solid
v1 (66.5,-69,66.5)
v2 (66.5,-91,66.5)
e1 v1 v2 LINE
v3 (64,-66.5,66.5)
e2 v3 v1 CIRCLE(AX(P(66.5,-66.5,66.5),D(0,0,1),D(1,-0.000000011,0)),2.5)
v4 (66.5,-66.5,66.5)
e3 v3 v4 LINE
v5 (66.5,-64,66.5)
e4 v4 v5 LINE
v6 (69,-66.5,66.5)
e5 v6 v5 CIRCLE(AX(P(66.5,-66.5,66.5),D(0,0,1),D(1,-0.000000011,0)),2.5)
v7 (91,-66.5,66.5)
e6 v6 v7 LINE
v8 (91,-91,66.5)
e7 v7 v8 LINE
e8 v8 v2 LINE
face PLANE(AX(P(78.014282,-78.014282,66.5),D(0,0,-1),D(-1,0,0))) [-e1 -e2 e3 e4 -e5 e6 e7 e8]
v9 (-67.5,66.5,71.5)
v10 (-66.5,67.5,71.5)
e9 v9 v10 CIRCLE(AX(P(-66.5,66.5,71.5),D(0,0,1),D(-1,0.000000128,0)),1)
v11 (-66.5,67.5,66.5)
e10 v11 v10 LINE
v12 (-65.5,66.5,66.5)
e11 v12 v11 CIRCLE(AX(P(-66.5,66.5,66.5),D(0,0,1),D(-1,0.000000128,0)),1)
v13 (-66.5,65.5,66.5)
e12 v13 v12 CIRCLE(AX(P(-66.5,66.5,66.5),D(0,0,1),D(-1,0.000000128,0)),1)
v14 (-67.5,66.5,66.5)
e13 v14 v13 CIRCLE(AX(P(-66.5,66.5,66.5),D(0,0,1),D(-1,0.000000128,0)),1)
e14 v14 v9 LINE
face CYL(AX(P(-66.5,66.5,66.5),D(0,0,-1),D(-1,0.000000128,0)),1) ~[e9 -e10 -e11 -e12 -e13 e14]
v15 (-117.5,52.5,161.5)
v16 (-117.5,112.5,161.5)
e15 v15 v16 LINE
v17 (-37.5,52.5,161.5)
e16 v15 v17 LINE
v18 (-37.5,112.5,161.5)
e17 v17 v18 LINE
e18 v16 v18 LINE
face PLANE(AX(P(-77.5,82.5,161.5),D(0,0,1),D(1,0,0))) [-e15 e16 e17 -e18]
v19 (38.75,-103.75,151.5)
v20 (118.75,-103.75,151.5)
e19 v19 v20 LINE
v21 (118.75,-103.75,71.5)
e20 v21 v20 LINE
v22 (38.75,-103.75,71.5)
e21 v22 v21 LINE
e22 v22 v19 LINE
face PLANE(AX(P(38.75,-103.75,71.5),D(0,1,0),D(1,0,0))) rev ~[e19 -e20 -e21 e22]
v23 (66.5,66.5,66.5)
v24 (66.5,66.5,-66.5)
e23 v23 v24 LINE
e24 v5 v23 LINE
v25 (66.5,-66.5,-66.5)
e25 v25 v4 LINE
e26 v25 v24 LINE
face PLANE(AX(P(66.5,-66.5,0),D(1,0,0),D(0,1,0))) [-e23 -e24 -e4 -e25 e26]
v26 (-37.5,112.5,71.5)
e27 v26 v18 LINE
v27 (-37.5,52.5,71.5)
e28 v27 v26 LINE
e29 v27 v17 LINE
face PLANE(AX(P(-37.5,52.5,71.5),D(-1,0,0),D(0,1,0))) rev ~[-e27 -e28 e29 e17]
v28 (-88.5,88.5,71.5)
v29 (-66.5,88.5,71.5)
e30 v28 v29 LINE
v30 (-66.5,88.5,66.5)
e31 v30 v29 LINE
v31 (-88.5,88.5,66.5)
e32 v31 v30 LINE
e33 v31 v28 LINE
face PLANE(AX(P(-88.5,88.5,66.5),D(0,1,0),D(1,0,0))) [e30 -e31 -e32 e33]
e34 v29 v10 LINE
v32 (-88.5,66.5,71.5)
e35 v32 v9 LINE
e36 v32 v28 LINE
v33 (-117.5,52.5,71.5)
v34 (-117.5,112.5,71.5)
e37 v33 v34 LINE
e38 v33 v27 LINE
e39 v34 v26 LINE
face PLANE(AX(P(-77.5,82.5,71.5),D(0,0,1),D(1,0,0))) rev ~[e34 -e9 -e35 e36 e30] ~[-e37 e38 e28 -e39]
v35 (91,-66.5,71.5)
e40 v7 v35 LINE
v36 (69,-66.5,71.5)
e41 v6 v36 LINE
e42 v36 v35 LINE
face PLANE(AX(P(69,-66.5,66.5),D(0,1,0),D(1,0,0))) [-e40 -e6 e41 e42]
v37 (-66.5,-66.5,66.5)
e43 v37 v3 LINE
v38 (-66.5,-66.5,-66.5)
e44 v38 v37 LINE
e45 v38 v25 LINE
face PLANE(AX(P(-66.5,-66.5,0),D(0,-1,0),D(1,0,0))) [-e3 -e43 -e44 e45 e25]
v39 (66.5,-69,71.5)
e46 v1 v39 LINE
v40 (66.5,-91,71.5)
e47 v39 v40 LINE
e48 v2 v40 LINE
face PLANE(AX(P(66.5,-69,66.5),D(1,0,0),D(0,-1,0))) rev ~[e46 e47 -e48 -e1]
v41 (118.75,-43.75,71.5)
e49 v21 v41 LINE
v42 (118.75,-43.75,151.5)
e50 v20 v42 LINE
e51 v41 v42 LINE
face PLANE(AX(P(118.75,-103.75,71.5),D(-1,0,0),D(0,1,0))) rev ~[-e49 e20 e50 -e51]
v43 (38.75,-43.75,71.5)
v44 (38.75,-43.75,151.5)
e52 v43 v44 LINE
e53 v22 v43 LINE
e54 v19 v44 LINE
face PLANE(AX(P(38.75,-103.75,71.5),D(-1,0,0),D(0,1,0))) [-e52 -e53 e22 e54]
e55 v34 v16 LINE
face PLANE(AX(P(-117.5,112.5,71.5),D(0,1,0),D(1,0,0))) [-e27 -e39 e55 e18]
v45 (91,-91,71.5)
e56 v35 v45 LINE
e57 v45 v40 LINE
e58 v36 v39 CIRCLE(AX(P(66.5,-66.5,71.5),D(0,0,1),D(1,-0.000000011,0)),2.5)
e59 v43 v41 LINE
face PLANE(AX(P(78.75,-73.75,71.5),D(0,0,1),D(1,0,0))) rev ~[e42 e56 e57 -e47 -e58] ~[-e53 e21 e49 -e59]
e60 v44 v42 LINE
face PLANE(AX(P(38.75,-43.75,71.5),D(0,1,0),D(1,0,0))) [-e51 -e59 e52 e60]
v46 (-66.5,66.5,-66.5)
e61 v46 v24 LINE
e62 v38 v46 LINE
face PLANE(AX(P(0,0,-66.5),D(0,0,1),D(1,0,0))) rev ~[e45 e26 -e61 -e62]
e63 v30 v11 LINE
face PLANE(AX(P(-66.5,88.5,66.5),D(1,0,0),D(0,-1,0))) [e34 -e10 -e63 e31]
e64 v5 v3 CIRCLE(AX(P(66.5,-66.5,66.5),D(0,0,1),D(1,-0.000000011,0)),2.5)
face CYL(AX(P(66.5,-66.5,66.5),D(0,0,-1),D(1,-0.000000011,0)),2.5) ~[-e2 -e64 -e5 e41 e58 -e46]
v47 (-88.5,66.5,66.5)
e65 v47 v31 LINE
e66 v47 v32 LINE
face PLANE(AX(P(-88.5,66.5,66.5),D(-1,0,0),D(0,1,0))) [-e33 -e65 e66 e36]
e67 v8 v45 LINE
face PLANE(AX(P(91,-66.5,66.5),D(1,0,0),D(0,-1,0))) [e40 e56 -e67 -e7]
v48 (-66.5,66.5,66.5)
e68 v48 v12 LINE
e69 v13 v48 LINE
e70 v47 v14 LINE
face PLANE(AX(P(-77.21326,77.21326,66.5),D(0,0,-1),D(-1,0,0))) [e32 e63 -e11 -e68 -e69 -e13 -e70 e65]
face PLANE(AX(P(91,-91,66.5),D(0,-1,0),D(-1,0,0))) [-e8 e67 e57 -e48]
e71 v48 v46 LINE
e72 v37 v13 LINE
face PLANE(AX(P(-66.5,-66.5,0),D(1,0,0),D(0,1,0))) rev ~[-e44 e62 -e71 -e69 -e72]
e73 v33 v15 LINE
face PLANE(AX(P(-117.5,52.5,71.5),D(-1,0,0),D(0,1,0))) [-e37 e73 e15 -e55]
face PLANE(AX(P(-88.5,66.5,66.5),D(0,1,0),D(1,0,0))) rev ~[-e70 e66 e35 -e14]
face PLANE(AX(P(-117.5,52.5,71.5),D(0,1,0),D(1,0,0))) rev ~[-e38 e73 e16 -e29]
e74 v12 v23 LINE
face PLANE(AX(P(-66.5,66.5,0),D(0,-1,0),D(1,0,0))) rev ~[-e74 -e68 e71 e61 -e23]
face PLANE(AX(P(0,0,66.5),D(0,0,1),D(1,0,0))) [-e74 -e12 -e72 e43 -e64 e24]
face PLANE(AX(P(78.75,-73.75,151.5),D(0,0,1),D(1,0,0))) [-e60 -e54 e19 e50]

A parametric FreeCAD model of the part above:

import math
import FreeCAD as App
import Part
import Sketcher

V = App.Vector
Q = App.Units.Quantity

doc = App.newDocument("Part")
body = doc.addObject("PartDesign::Body", "Body")

sketch1 = doc.addObject("Sketcher::SketchObject", "Sketch")
body.addObject(sketch1)
sketch1.AttachmentSupport = (doc.XY_Plane, [""])
sketch1.MapMode = "FlatFace"
sketch1.addGeometry(Part.LineSegment(V(-66.5, 66.5, 0), V(-66.5, -66.5, 0)), False)
sketch1.addGeometry(Part.LineSegment(V(-66.5, -66.5, 0), V(66.5, -66.5, 0)), False)
sketch1.addGeometry(Part.LineSegment(V(66.5, -66.5, 0), V(66.5, 66.5, 0)), False)
sketch1.addGeometry(Part.LineSegment(V(66.5, 66.5, 0), V(-66.5, 66.5, 0)), False)
sketch1.addConstraint(Sketcher.Constraint("Coincident", 0, 2, 1, 1))
sketch1.addConstraint(Sketcher.Constraint("Coincident", 1, 2, 2, 1))
sketch1.addConstraint(Sketcher.Constraint("Coincident", 2, 2, 3, 1))
sketch1.addConstraint(Sketcher.Constraint("Coincident", 3, 2, 0, 1))
sketch1.addConstraint(Sketcher.Constraint("Vertical", 0))
sketch1.addConstraint(Sketcher.Constraint("Horizontal", 1))
sketch1.addConstraint(Sketcher.Constraint("Vertical", 2))
sketch1.addConstraint(Sketcher.Constraint("Horizontal", 3))
sketch1.addConstraint(Sketcher.Constraint("Symmetric", 0, 2, 2, 2, -1, 1))
sketch1.addConstraint(Sketcher.Constraint("Equal", 3, 0))
sketch1.addConstraint(Sketcher.Constraint("DistanceX", 1, 1, 1, 2, Q("133 mm")))
pad1 = doc.addObject("PartDesign::Pad", "Pad")
body.addObject(pad1)
pad1.Profile = sketch1
pad1.Length = 133
pad1.Midplane = True

sketch2 = doc.addObject("Sketcher::SketchObject", "Sketch001")
body.addObject(sketch2)
sketch2.AttachmentSupport = (doc.XY_Plane, [""])
sketch2.MapMode = "FlatFace"
sketch2.AttachmentOffset = App.Placement(V(0, 0, 66.5), App.Rotation())
sketch2.addGeometry(Part.LineSegment(V(-66.5, 88.5, 0), V(-88.5, 88.5, 0)), False)
sketch2.addGeometry(Part.LineSegment(V(-88.5, 88.5, 0), V(-88.5, 66.5, 0)), False)
sketch2.addGeometry(Part.LineSegment(V(-88.5, 66.5, 0), V(-67.5, 66.5, 0)), False)
sketch2.addGeometry(Part.ArcOfCircle(Part.Circle(V(-66.5, 66.5, 0), V(0, 0, 1), 1), math.radians(179.999993), math.radians(450.000007)), False)
sketch2.addGeometry(Part.LineSegment(V(-66.5, 67.5, 0), V(-66.5, 88.5, 0)), False)
sketch2.addConstraint(Sketcher.Constraint("Coincident", 0, 2, 1, 1))
sketch2.addConstraint(Sketcher.Constraint("Coincident", 1, 2, 2, 1))
sketch2.addConstraint(Sketcher.Constraint("Coincident", 2, 2, 3, 1))
sketch2.addConstraint(Sketcher.Constraint("Coincident", 3, 2, 4, 1))
sketch2.addConstraint(Sketcher.Constraint("Coincident", 4, 2, 0, 1))
sketch2.addConstraint(Sketcher.Constraint("Horizontal", 0))
sketch2.addConstraint(Sketcher.Constraint("Vertical", 1))
sketch2.addConstraint(Sketcher.Constraint("Horizontal", 2))
sketch2.addConstraint(Sketcher.Constraint("Vertical", 4))
sketch2.addConstraint(Sketcher.Constraint("Horizontal", 3, 3, 1, 2))
sketch2.addConstraint(Sketcher.Constraint("Equal", 0, 1))
sketch2.addConstraint(Sketcher.Constraint("Equal", 2, 4))
sketch2.addConstraint(Sketcher.Constraint("Radius", 3, Q("1 mm")))
sketch2.addConstraint(Sketcher.Constraint("DistanceX", 0, 2, 0, 1, Q("22 mm")))
sketch2.addConstraint(Sketcher.Constraint("DistanceX", 3, 3, -1, 1, Q("66.5 mm")))
sketch2.addConstraint(Sketcher.Constraint("DistanceY", -1, 1, 3, 3, Q("66.5 mm")))
pad2 = doc.addObject("PartDesign::Pad", "Pad001")
body.addObject(pad2)
pad2.Profile = sketch2
pad2.Length = 5

sketch3 = doc.addObject("Sketcher::SketchObject", "Sketch002")
body.addObject(sketch3)
sketch3.AttachmentSupport = (doc.XY_Plane, [""])
sketch3.MapMode = "FlatFace"
sketch3.AttachmentOffset = App.Placement(V(0, 0, 71.5), App.Rotation())
sketch3.addGeometry(Part.LineSegment(V(-117.5, 112.5, 0), V(-117.5, 52.5, 0)), False)
sketch3.addGeometry(Part.LineSegment(V(-117.5, 52.5, 0), V(-37.5, 52.5, 0)), False)
sketch3.addGeometry(Part.LineSegment(V(-37.5, 52.5, 0), V(-37.5, 112.5, 0)), False)
sketch3.addGeometry(Part.LineSegment(V(-37.5, 112.5, 0), V(-117.5, 112.5, 0)), False)
sketch3.addConstraint(Sketcher.Constraint("Coincident", 0, 2, 1, 1))
sketch3.addConstraint(Sketcher.Constraint("Coincident", 1, 2, 2, 1))
sketch3.addConstraint(Sketcher.Constraint("Coincident", 2, 2, 3, 1))
sketch3.addConstraint(Sketcher.Constraint("Coincident", 3, 2, 0, 1))
sketch3.addConstraint(Sketcher.Constraint("Vertical", 0))
sketch3.addConstraint(Sketcher.Constraint("Horizontal", 1))
sketch3.addConstraint(Sketcher.Constraint("Vertical", 2))
sketch3.addConstraint(Sketcher.Constraint("Horizontal", 3))
sketch3.addConstraint(Sketcher.Constraint("DistanceX", 1, 1, 1, 2, Q("80 mm")))
sketch3.addConstraint(Sketcher.Constraint("DistanceY", 0, 2, 0, 1, Q("60 mm")))
sketch3.addConstraint(Sketcher.Constraint("DistanceX", 0, 2, -1, 1, Q("117.5 mm")))
sketch3.addConstraint(Sketcher.Constraint("DistanceY", -1, 1, 0, 2, Q("52.5 mm")))
pad3 = doc.addObject("PartDesign::Pad", "Pad002")
body.addObject(pad3)
pad3.Profile = sketch3
pad3.Length = 90

sketch4 = doc.addObject("Sketcher::SketchObject", "Sketch003")
body.addObject(sketch4)
sketch4.AttachmentSupport = (doc.XY_Plane, [""])
sketch4.MapMode = "FlatFace"
sketch4.AttachmentOffset = App.Placement(V(0, 0, 66.5), App.Rotation())
sketch4.addGeometry(Part.LineSegment(V(91, -91, 0), V(91, -66.5, 0)), False)
sketch4.addGeometry(Part.LineSegment(V(91, -66.5, 0), V(69, -66.5, 0)), False)
sketch4.addGeometry(Part.ArcOfCircle(Part.Circle(V(66.5, -66.5, 0), V(0, 0, 1), 2.5), math.radians(-0.000001), math.radians(270.000001)), False)
sketch4.addGeometry(Part.LineSegment(V(66.5, -69, 0), V(66.5, -91, 0)), False)
sketch4.addGeometry(Part.LineSegment(V(66.5, -91, 0), V(91, -91, 0)), False)
sketch4.addConstraint(Sketcher.Constraint("Coincident", 0, 2, 1, 1))
sketch4.addConstraint(Sketcher.Constraint("Coincident", 1, 2, 2, 1))
sketch4.addConstraint(Sketcher.Constraint("Coincident", 2, 2, 3, 1))
sketch4.addConstraint(Sketcher.Constraint("Coincident", 3, 2, 4, 1))
sketch4.addConstraint(Sketcher.Constraint("Coincident", 4, 2, 0, 1))
sketch4.addConstraint(Sketcher.Constraint("Vertical", 0))
sketch4.addConstraint(Sketcher.Constraint("Horizontal", 1))
sketch4.addConstraint(Sketcher.Constraint("Vertical", 3))
sketch4.addConstraint(Sketcher.Constraint("Horizontal", 4))
sketch4.addConstraint(Sketcher.Constraint("Horizontal", 2, 3, 0, 2))
sketch4.addConstraint(Sketcher.Constraint("Equal", 4, 0))
sketch4.addConstraint(Sketcher.Constraint("Equal", 1, 3))
sketch4.addConstraint(Sketcher.Constraint("Radius", 2, Q("2.5 mm")))
sketch4.addConstraint(Sketcher.Constraint("DistanceX", 1, 2, 1, 1, Q("22 mm")))
sketch4.addConstraint(Sketcher.Constraint("DistanceX", -1, 1, 0, 2, Q("91 mm")))
sketch4.addConstraint(Sketcher.Constraint("DistanceY", 2, 2, -1, 1, Q("69 mm")))
pad4 = doc.addObject("PartDesign::Pad", "Pad003")
body.addObject(pad4)
pad4.Profile = sketch4
pad4.Length = 5

sketch5 = doc.addObject("Sketcher::SketchObject", "Sketch004")
body.addObject(sketch5)
sketch5.AttachmentSupport = (doc.XY_Plane, [""])
sketch5.MapMode = "FlatFace"
sketch5.AttachmentOffset = App.Placement(V(0, 0, 71.5), App.Rotation())
sketch5.addGeometry(Part.LineSegment(V(38.75, -43.75, 0), V(38.75, -103.75, 0)), False)
sketch5.addGeometry(Part.LineSegment(V(38.75, -103.75, 0), V(118.75, -103.75, 0)), False)
sketch5.addGeometry(Part.LineSegment(V(118.75, -103.75, 0), V(118.75, -43.75, 0)), False)
sketch5.addGeometry(Part.LineSegment(V(118.75, -43.75, 0), V(38.75, -43.75, 0)), False)
sketch5.addConstraint(Sketcher.Constraint("Coincident", 0, 2, 1, 1))
sketch5.addConstraint(Sketcher.Constraint("Coincident", 1, 2, 2, 1))
sketch5.addConstraint(Sketcher.Constraint("Coincident", 2, 2, 3, 1))
sketch5.addConstraint(Sketcher.Constraint("Coincident", 3, 2, 0, 1))
sketch5.addConstraint(Sketcher.Constraint("Vertical", 0))
sketch5.addConstraint(Sketcher.Constraint("Horizontal", 1))
sketch5.addConstraint(Sketcher.Constraint("Vertical", 2))
sketch5.addConstraint(Sketcher.Constraint("Horizontal", 3))
sketch5.addConstraint(Sketcher.Constraint("DistanceX", 1, 1, 1, 2, Q("80 mm")))
sketch5.addConstraint(Sketcher.Constraint("DistanceY", 0, 2, 0, 1, Q("60 mm")))
sketch5.addConstraint(Sketcher.Constraint("DistanceX", -1, 1, 0, 2, Q("38.75 mm")))
sketch5.addConstraint(Sketcher.Constraint("DistanceY", 0, 2, -1, 1, Q("103.75 mm")))
pad5 = doc.addObject("PartDesign::Pad", "Pad004")
body.addObject(pad5)
pad5.Profile = sketch5
pad5.Length = 80

doc.recompute()
